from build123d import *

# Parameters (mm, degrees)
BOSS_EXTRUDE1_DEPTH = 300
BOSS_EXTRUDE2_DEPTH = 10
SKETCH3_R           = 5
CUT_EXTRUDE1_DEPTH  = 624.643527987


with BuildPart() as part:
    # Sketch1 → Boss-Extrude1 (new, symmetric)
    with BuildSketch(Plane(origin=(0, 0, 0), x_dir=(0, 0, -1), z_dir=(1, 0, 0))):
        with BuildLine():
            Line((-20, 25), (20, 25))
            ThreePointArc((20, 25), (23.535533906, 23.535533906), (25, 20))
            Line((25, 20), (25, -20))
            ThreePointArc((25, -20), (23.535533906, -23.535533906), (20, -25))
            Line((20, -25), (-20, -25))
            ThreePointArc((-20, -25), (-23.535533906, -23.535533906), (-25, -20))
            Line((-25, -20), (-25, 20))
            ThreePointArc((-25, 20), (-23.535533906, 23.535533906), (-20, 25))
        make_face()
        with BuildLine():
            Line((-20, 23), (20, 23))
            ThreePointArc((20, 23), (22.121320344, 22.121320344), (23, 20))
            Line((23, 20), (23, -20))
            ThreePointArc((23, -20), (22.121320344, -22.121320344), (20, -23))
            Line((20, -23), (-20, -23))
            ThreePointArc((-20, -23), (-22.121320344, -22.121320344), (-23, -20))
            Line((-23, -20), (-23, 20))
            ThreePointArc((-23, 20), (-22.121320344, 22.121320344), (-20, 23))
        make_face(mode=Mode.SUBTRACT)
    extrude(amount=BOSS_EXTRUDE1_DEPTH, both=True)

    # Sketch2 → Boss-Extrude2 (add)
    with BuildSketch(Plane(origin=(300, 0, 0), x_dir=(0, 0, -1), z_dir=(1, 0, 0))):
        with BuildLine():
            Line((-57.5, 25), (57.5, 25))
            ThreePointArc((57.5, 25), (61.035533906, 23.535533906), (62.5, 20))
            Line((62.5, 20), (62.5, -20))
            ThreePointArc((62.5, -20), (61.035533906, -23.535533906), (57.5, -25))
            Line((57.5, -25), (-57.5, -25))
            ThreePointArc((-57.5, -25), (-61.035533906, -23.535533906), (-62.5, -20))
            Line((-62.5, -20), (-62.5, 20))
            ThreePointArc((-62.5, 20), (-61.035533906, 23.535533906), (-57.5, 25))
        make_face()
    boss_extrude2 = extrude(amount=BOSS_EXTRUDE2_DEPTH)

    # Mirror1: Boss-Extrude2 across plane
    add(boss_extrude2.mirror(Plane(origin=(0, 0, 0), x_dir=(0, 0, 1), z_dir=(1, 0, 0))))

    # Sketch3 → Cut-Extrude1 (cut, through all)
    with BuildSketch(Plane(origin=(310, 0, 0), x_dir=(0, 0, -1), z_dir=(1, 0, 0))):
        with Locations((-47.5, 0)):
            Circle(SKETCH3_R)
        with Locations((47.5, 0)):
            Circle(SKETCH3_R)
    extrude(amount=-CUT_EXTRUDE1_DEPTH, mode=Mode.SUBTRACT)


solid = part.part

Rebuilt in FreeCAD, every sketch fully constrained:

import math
import FreeCAD as App
import Part
import Sketcher

doc = App.newDocument("Part")
body = doc.addObject("PartDesign::Body", "Body")

# Sketch on YZ plane
sketch1 = body.newObject("Sketcher::SketchObject", "Sketch")
sketch1.AttachmentSupport = (doc.getObject("YZ_Plane"), [""])
sketch1.MapMode = "FlatFace"
sketch1.addGeometry(Part.LineSegment(App.Vector(25, -20, 0), App.Vector(25, 20, 0)), False)
sketch1.addGeometry(Part.ArcOfCircle(Part.Circle(App.Vector(20, 20, 0), App.Vector(0, 0, 1), 5), math.radians(0), math.radians(90)), False)
sketch1.addGeometry(Part.LineSegment(App.Vector(20, 25, 0), App.Vector(-20, 25, 0)), False)
sketch1.addGeometry(Part.ArcOfCircle(Part.Circle(App.Vector(-20, 20, 0), App.Vector(0, 0, 1), 5), math.radians(90), math.radians(180)), False)
sketch1.addGeometry(Part.LineSegment(App.Vector(-25, 20, 0), App.Vector(-25, -20, 0)), False)
sketch1.addGeometry(Part.ArcOfCircle(Part.Circle(App.Vector(-20, -20, 0), App.Vector(0, 0, 1), 5), math.radians(180), math.radians(270)), False)
sketch1.addGeometry(Part.LineSegment(App.Vector(-20, -25, 0), App.Vector(20, -25, 0)), False)
sketch1.addGeometry(Part.ArcOfCircle(Part.Circle(App.Vector(20, -20, 0), App.Vector(0, 0, 1), 5), math.radians(-90), math.radians(0)), False)
sketch1.addGeometry(Part.LineSegment(App.Vector(23, 20, 0), App.Vector(23, -20, 0)), False)
sketch1.addGeometry(Part.ArcOfCircle(Part.Circle(App.Vector(20, -20, 0), App.Vector(0, 0, 1), 3), math.radians(-90), math.radians(0)), False)
sketch1.addGeometry(Part.LineSegment(App.Vector(20, -23, 0), App.Vector(-20, -23, 0)), False)
sketch1.addGeometry(Part.ArcOfCircle(Part.Circle(App.Vector(-20, -20, 0), App.Vector(0, 0, 1), 3), math.radians(180), math.radians(270)), False)
sketch1.addGeometry(Part.LineSegment(App.Vector(-23, -20, 0), App.Vector(-23, 20, 0)), False)
sketch1.addGeometry(Part.ArcOfCircle(Part.Circle(App.Vector(-20, 20, 0), App.Vector(0, 0, 1), 3), math.radians(90), math.radians(180)), False)
sketch1.addGeometry(Part.LineSegment(App.Vector(-20, 23, 0), App.Vector(20, 23, 0)), False)
sketch1.addGeometry(Part.ArcOfCircle(Part.Circle(App.Vector(20, 20, 0), App.Vector(0, 0, 1), 3), math.radians(0), math.radians(90)), False)
sketch1.addConstraint(Sketcher.Constraint("Tangent", 0, 2, 1, 1))
sketch1.addConstraint(Sketcher.Constraint("Tangent", 1, 2, 2, 1))
sketch1.addConstraint(Sketcher.Constraint("Tangent", 2, 2, 3, 1))
sketch1.addConstraint(Sketcher.Constraint("Tangent", 3, 2, 4, 1))
sketch1.addConstraint(Sketcher.Constraint("Tangent", 4, 2, 5, 1))
sketch1.addConstraint(Sketcher.Constraint("Tangent", 5, 2, 6, 1))
sketch1.addConstraint(Sketcher.Constraint("Tangent", 6, 2, 7, 1))
sketch1.addConstraint(Sketcher.Constraint("Tangent", 7, 2, 0, 1))
sketch1.addConstraint(Sketcher.Constraint("Tangent", 8, 2, 9, 2))
sketch1.addConstraint(Sketcher.Constraint("Tangent", 9, 1, 10, 1))
sketch1.addConstraint(Sketcher.Constraint("Tangent", 10, 2, 11, 2))
sketch1.addConstraint(Sketcher.Constraint("Tangent", 11, 1, 12, 1))
sketch1.addConstraint(Sketcher.Constraint("Tangent", 12, 2, 13, 2))
sketch1.addConstraint(Sketcher.Constraint("Tangent", 13, 1, 14, 1))
sketch1.addConstraint(Sketcher.Constraint("Tangent", 14, 2, 15, 2))
sketch1.addConstraint(Sketcher.Constraint("Tangent", 15, 1, 8, 1))
sketch1.addConstraint(Sketcher.Constraint("Vertical", 0))
sketch1.addConstraint(Sketcher.Constraint("Horizontal", 2))
sketch1.addConstraint(Sketcher.Constraint("Vertical", 4))
sketch1.addConstraint(Sketcher.Constraint("Horizontal", 6))
sketch1.addConstraint(Sketcher.Constraint("Vertical", 8))
sketch1.addConstraint(Sketcher.Constraint("Horizontal", 10))
sketch1.addConstraint(Sketcher.Constraint("Vertical", 12))
sketch1.addConstraint(Sketcher.Constraint("Horizontal", 14))
sketch1.addConstraint(Sketcher.Constraint("Coincident", 9, 3, 7, 3))
sketch1.addConstraint(Sketcher.Constraint("Coincident", 11, 3, 5, 3))
sketch1.addConstraint(Sketcher.Constraint("Coincident", 13, 3, 3, 3))
sketch1.addConstraint(Sketcher.Constraint("Equal", 1, 3))
sketch1.addConstraint(Sketcher.Constraint("Equal", 3, 5))
sketch1.addConstraint(Sketcher.Constraint("Equal", 5, 7))
sketch1.addConstraint(Sketcher.Constraint("Equal", 13, 15))
sketch1.addConstraint(Sketcher.Constraint("Symmetric", 1, 3, 5, 3, -1, 1))
sketch1.addConstraint(Sketcher.Constraint("Equal", 14, 0))
sketch1.addConstraint(Sketcher.Constraint("Radius", 1, 5.0))
sketch1.addConstraint(Sketcher.Constraint("Radius", 9, 3.0))
sketch1.addConstraint(Sketcher.Constraint("DistanceX", 2, 2, 2, 1, 40.0))
pad1 = body.newObject("PartDesign::Pad", "Pad")
pad1.Profile = sketch1
pad1.Length = 600
pad1.Midplane = True

# Sketch on YZ plane
sketch2 = body.newObject("Sketcher::SketchObject", "Sketch001")
sketch2.AttachmentSupport = (doc.getObject("YZ_Plane"), [""])
sketch2.MapMode = "FlatFace"
sketch2.AttachmentOffset = App.Placement(App.Vector(0, 0, 300), App.Rotation())
sketch2.addGeometry(Part.LineSegment(App.Vector(25, -58, 0), App.Vector(25, 58, 0)), False)
sketch2.addGeometry(Part.ArcOfCircle(Part.Circle(App.Vector(20, 58, 0), App.Vector(0, 0, 1), 5), math.radians(0), math.radians(90)), False)
sketch2.addGeometry(Part.LineSegment(App.Vector(20, 62, 0), App.Vector(-20, 62, 0)), False)
sketch2.addGeometry(Part.ArcOfCircle(Part.Circle(App.Vector(-20, 58, 0), App.Vector(0, 0, 1), 5), math.radians(90), math.radians(180)), False)
sketch2.addGeometry(Part.LineSegment(App.Vector(-25, 58, 0), App.Vector(-25, -58, 0)), False)
sketch2.addGeometry(Part.ArcOfCircle(Part.Circle(App.Vector(-20, -58, 0), App.Vector(0, 0, 1), 5), math.radians(180), math.radians(270)), False)
sketch2.addGeometry(Part.LineSegment(App.Vector(-20, -62, 0), App.Vector(20, -62, 0)), False)
sketch2.addGeometry(Part.ArcOfCircle(Part.Circle(App.Vector(20, -58, 0), App.Vector(0, 0, 1), 5), math.radians(-90), math.radians(0)), False)
sketch2.addConstraint(Sketcher.Constraint("Tangent", 0, 2, 1, 1))
sketch2.addConstraint(Sketcher.Constraint("Tangent", 1, 2, 2, 1))
sketch2.addConstraint(Sketcher.Constraint("Tangent", 2, 2, 3, 1))
sketch2.addConstraint(Sketcher.Constraint("Tangent", 3, 2, 4, 1))
sketch2.addConstraint(Sketcher.Constraint("Tangent", 4, 2, 5, 1))
sketch2.addConstraint(Sketcher.Constraint("Tangent", 5, 2, 6, 1))
sketch2.addConstraint(Sketcher.Constraint("Tangent", 6, 2, 7, 1))
sketch2.addConstraint(Sketcher.Constraint("Tangent", 7, 2, 0, 1))
sketch2.addConstraint(Sketcher.Constraint("Vertical", 0))
sketch2.addConstraint(Sketcher.Constraint("Horizontal", 2))
sketch2.addConstraint(Sketcher.Constraint("Vertical", 4))
sketch2.addConstraint(Sketcher.Constraint("Horizontal", 6))
sketch2.addConstraint(Sketcher.Constraint("Equal", 1, 3))
sketch2.addConstraint(Sketcher.Constraint("Equal", 3, 5))
sketch2.addConstraint(Sketcher.Constraint("Equal", 5, 7))
sketch2.addConstraint(Sketcher.Constraint("Symmetric", 1, 3, 5, 3, -1, 1))
sketch2.addConstraint(Sketcher.Constraint("Radius", 1, 5.0))
sketch2.addConstraint(Sketcher.Constraint("DistanceX", 2, 2, 2, 1, 40.0))
sketch2.addConstraint(Sketcher.Constraint("DistanceY", 0, 1, 0, 2, 115.0))
pad2 = body.newObject("PartDesign::Pad", "Pad001")
pad2.Profile = sketch2
pad2.Length = 10
doc.recompute()

mirrored = body.newObject("PartDesign::Mirrored", "Mirrored")
mirrored.Originals = [pad2]
mirrored.MirrorPlane = (doc.getObject("YZ_Plane"), [""])
body.Tip = mirrored

# Sketch on YZ plane
sketch3 = body.newObject("Sketcher::SketchObject", "Sketch002")
sketch3.AttachmentSupport = (doc.getObject("YZ_Plane"), [""])
sketch3.MapMode = "FlatFace"
sketch3.AttachmentOffset = App.Placement(App.Vector(0, 0, 310), App.Rotation())
sketch3.addGeometry(Part.Circle(App.Vector(0, 48, 0), App.Vector(0, 0, 1), 5), False)
sketch3.addGeometry(Part.Circle(App.Vector(0, -48, 0), App.Vector(0, 0, 1), 5), False)
sketch3.addConstraint(Sketcher.Constraint("Equal", 0, 1))
sketch3.addConstraint(Sketcher.Constraint("Symmetric", 0, 3, 1, 3, -1, 1))
sketch3.addConstraint(Sketcher.Constraint("PointOnObject", 0, 3, -2))
sketch3.addConstraint(Sketcher.Constraint("Diameter", 0, 10.0))
sketch3.addConstraint(Sketcher.Constraint("DistanceY", 1, 3, 0, 3, 95.0))
pocket1 = body.newObject("PartDesign::Pocket", "Pocket")
pocket1.Profile = sketch3
pocket1.Type = "ThroughAll"

doc.recompute()
